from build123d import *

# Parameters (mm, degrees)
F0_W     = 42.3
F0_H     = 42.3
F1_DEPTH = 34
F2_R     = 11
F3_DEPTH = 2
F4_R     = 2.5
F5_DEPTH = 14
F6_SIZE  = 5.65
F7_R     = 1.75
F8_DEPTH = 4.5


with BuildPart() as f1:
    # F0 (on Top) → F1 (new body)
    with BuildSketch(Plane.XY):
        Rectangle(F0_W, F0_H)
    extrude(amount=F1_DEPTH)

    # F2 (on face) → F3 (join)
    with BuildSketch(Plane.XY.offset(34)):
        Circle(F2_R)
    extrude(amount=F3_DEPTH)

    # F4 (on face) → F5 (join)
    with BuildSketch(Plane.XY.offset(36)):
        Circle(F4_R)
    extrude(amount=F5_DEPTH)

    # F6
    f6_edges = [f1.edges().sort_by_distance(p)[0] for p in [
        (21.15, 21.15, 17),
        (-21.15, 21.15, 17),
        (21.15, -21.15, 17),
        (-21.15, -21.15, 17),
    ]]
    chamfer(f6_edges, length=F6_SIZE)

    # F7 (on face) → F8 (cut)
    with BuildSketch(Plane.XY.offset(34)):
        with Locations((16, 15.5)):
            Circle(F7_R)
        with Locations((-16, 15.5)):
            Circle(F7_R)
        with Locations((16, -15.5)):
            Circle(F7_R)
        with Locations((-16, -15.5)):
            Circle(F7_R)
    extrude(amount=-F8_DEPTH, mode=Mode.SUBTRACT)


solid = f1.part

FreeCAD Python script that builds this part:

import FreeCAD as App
import Part
import Sketcher

V = App.Vector


def edges_at(feature, points):
    """Names of the edges that pass closest to the given points."""
    edges = feature.Shape.Edges
    near = lambda p: min(range(len(edges)), key=lambda i: edges[i].distToShape(Part.Vertex(*p))[0])
    return sorted({f"Edge{near(p) + 1}" for p in points})


def add_polygon(sketch, points):
    """Adds a closed chain of lines whose ends are joined by coincident constraints."""
    first, n = sketch.GeometryCount, len(points)
    for a, b in zip(points, points[1:] + points[:1]):
        sketch.addGeometry(Part.LineSegment(App.Vector(*a, 0), App.Vector(*b, 0)), False)
    for i in range(n):
        sketch.addConstraint(Sketcher.Constraint("Coincident", first + i, 2, first + (i + 1) % n, 1))

doc = App.newDocument("Part")
body = doc.addObject("PartDesign::Body", "Body")

sketch1 = body.newObject("Sketcher::SketchObject", "Sketch")
sketch1.AttachmentSupport = (doc.getObject("XY_Plane"), [""])
sketch1.MapMode = "FlatFace"
add_polygon(sketch1, [(-21, 21), (-21, -21), (21, -21), (21, 21)])
sketch1.addConstraint(Sketcher.Constraint("Vertical", 0))
sketch1.addConstraint(Sketcher.Constraint("Horizontal", 1))
sketch1.addConstraint(Sketcher.Constraint("Vertical", 2))
sketch1.addConstraint(Sketcher.Constraint("Horizontal", 3))
sketch1.addConstraint(Sketcher.Constraint("Symmetric", 0, 2, 2, 2, -1, 1))
sketch1.addConstraint(Sketcher.Constraint("Equal", 3, 0))
sketch1.addConstraint(Sketcher.Constraint("DistanceX", 1, 1, 1, 2, 42.3))
pad1 = body.newObject("PartDesign::Pad", "Pad")
pad1.Profile = sketch1
pad1.Length = 34

sketch2 = body.newObject("Sketcher::SketchObject", "Sketch001")
sketch2.AttachmentSupport = (doc.getObject("XY_Plane"), [""])
sketch2.MapMode = "FlatFace"
sketch2.AttachmentOffset = App.Placement(V(0, 0, 34), App.Rotation())
sketch2.addGeometry(Part.Circle(V(0, 0, 0), V(0, 0, 1), 11), False)
sketch2.addConstraint(Sketcher.Constraint("Coincident", 0, 3, -1, 1))
sketch2.addConstraint(Sketcher.Constraint("Diameter", 0, 22.0))
pad2 = body.newObject("PartDesign::Pad", "Pad001")
pad2.Profile = sketch2
pad2.Length = 2

sketch3 = body.newObject("Sketcher::SketchObject", "Sketch002")
sketch3.AttachmentSupport = (doc.getObject("XY_Plane"), [""])
sketch3.MapMode = "FlatFace"
sketch3.AttachmentOffset = App.Placement(V(0, 0, 36), App.Rotation())
sketch3.addGeometry(Part.Circle(V(0, 0, 0), V(0, 0, 1), 2.5), False)
sketch3.addConstraint(Sketcher.Constraint("Coincident", 0, 3, -1, 1))
sketch3.addConstraint(Sketcher.Constraint("Diameter", 0, 5.0))
pad3 = body.newObject("PartDesign::Pad", "Pad002")
pad3.Profile = sketch3
pad3.Length = 14
doc.recompute()

chamfer = body.newObject("PartDesign::Chamfer", "Chamfer")
chamfer.Base = (pad3, edges_at(pad3, [
    (21.15, 21.15, 17),
    (-21.15, 21.15, 17),
    (21.15, -21.15, 17),
    (-21.15, -21.15, 17),
]))
chamfer.Size = 5.65

sketch4 = body.newObject("Sketcher::SketchObject", "Sketch003")
sketch4.AttachmentSupport = (doc.getObject("XY_Plane"), [""])
sketch4.MapMode = "FlatFace"
sketch4.AttachmentOffset = App.Placement(V(0, 0, 34), App.Rotation())
sketch4.addGeometry(Part.Circle(V(16, 15.5, 0), V(0, 0, 1), 1.8), False)
sketch4.addGeometry(Part.Circle(V(-16, 15.5, 0), V(0, 0, 1), 1.8), False)
sketch4.addGeometry(Part.Circle(V(16, -15.5, 0), V(0, 0, 1), 1.8), False)
sketch4.addGeometry(Part.Circle(V(-16, -15.5, 0), V(0, 0, 1), 1.8), False)
sketch4.addConstraint(Sketcher.Constraint("Equal", 0, 1))
sketch4.addConstraint(Sketcher.Constraint("Equal", 1, 2))
sketch4.addConstraint(Sketcher.Constraint("Equal", 2, 3))
sketch4.addConstraint(Sketcher.Constraint("Symmetric", 1, 3, 2, 3, -1, 1))
sketch4.addConstraint(Sketcher.Constraint("Symmetric", 0, 3, 3, 3, -1, 1))
sketch4.addConstraint(Sketcher.Constraint("Symmetric", 0, 3, 1, 3, -2))
sketch4.addConstraint(Sketcher.Constraint("Diameter", 0, 3.5))
sketch4.addConstraint(Sketcher.Constraint("DistanceX", -1, 1, 0, 3, 16.0))
sketch4.addConstraint(Sketcher.Constraint("DistanceY", 2, 3, 0, 3, 31.0))
pocket1 = body.newObject("PartDesign::Pocket", "Pocket")
pocket1.Profile = sketch4
pocket1.Length = 4.5

doc.recompute()
